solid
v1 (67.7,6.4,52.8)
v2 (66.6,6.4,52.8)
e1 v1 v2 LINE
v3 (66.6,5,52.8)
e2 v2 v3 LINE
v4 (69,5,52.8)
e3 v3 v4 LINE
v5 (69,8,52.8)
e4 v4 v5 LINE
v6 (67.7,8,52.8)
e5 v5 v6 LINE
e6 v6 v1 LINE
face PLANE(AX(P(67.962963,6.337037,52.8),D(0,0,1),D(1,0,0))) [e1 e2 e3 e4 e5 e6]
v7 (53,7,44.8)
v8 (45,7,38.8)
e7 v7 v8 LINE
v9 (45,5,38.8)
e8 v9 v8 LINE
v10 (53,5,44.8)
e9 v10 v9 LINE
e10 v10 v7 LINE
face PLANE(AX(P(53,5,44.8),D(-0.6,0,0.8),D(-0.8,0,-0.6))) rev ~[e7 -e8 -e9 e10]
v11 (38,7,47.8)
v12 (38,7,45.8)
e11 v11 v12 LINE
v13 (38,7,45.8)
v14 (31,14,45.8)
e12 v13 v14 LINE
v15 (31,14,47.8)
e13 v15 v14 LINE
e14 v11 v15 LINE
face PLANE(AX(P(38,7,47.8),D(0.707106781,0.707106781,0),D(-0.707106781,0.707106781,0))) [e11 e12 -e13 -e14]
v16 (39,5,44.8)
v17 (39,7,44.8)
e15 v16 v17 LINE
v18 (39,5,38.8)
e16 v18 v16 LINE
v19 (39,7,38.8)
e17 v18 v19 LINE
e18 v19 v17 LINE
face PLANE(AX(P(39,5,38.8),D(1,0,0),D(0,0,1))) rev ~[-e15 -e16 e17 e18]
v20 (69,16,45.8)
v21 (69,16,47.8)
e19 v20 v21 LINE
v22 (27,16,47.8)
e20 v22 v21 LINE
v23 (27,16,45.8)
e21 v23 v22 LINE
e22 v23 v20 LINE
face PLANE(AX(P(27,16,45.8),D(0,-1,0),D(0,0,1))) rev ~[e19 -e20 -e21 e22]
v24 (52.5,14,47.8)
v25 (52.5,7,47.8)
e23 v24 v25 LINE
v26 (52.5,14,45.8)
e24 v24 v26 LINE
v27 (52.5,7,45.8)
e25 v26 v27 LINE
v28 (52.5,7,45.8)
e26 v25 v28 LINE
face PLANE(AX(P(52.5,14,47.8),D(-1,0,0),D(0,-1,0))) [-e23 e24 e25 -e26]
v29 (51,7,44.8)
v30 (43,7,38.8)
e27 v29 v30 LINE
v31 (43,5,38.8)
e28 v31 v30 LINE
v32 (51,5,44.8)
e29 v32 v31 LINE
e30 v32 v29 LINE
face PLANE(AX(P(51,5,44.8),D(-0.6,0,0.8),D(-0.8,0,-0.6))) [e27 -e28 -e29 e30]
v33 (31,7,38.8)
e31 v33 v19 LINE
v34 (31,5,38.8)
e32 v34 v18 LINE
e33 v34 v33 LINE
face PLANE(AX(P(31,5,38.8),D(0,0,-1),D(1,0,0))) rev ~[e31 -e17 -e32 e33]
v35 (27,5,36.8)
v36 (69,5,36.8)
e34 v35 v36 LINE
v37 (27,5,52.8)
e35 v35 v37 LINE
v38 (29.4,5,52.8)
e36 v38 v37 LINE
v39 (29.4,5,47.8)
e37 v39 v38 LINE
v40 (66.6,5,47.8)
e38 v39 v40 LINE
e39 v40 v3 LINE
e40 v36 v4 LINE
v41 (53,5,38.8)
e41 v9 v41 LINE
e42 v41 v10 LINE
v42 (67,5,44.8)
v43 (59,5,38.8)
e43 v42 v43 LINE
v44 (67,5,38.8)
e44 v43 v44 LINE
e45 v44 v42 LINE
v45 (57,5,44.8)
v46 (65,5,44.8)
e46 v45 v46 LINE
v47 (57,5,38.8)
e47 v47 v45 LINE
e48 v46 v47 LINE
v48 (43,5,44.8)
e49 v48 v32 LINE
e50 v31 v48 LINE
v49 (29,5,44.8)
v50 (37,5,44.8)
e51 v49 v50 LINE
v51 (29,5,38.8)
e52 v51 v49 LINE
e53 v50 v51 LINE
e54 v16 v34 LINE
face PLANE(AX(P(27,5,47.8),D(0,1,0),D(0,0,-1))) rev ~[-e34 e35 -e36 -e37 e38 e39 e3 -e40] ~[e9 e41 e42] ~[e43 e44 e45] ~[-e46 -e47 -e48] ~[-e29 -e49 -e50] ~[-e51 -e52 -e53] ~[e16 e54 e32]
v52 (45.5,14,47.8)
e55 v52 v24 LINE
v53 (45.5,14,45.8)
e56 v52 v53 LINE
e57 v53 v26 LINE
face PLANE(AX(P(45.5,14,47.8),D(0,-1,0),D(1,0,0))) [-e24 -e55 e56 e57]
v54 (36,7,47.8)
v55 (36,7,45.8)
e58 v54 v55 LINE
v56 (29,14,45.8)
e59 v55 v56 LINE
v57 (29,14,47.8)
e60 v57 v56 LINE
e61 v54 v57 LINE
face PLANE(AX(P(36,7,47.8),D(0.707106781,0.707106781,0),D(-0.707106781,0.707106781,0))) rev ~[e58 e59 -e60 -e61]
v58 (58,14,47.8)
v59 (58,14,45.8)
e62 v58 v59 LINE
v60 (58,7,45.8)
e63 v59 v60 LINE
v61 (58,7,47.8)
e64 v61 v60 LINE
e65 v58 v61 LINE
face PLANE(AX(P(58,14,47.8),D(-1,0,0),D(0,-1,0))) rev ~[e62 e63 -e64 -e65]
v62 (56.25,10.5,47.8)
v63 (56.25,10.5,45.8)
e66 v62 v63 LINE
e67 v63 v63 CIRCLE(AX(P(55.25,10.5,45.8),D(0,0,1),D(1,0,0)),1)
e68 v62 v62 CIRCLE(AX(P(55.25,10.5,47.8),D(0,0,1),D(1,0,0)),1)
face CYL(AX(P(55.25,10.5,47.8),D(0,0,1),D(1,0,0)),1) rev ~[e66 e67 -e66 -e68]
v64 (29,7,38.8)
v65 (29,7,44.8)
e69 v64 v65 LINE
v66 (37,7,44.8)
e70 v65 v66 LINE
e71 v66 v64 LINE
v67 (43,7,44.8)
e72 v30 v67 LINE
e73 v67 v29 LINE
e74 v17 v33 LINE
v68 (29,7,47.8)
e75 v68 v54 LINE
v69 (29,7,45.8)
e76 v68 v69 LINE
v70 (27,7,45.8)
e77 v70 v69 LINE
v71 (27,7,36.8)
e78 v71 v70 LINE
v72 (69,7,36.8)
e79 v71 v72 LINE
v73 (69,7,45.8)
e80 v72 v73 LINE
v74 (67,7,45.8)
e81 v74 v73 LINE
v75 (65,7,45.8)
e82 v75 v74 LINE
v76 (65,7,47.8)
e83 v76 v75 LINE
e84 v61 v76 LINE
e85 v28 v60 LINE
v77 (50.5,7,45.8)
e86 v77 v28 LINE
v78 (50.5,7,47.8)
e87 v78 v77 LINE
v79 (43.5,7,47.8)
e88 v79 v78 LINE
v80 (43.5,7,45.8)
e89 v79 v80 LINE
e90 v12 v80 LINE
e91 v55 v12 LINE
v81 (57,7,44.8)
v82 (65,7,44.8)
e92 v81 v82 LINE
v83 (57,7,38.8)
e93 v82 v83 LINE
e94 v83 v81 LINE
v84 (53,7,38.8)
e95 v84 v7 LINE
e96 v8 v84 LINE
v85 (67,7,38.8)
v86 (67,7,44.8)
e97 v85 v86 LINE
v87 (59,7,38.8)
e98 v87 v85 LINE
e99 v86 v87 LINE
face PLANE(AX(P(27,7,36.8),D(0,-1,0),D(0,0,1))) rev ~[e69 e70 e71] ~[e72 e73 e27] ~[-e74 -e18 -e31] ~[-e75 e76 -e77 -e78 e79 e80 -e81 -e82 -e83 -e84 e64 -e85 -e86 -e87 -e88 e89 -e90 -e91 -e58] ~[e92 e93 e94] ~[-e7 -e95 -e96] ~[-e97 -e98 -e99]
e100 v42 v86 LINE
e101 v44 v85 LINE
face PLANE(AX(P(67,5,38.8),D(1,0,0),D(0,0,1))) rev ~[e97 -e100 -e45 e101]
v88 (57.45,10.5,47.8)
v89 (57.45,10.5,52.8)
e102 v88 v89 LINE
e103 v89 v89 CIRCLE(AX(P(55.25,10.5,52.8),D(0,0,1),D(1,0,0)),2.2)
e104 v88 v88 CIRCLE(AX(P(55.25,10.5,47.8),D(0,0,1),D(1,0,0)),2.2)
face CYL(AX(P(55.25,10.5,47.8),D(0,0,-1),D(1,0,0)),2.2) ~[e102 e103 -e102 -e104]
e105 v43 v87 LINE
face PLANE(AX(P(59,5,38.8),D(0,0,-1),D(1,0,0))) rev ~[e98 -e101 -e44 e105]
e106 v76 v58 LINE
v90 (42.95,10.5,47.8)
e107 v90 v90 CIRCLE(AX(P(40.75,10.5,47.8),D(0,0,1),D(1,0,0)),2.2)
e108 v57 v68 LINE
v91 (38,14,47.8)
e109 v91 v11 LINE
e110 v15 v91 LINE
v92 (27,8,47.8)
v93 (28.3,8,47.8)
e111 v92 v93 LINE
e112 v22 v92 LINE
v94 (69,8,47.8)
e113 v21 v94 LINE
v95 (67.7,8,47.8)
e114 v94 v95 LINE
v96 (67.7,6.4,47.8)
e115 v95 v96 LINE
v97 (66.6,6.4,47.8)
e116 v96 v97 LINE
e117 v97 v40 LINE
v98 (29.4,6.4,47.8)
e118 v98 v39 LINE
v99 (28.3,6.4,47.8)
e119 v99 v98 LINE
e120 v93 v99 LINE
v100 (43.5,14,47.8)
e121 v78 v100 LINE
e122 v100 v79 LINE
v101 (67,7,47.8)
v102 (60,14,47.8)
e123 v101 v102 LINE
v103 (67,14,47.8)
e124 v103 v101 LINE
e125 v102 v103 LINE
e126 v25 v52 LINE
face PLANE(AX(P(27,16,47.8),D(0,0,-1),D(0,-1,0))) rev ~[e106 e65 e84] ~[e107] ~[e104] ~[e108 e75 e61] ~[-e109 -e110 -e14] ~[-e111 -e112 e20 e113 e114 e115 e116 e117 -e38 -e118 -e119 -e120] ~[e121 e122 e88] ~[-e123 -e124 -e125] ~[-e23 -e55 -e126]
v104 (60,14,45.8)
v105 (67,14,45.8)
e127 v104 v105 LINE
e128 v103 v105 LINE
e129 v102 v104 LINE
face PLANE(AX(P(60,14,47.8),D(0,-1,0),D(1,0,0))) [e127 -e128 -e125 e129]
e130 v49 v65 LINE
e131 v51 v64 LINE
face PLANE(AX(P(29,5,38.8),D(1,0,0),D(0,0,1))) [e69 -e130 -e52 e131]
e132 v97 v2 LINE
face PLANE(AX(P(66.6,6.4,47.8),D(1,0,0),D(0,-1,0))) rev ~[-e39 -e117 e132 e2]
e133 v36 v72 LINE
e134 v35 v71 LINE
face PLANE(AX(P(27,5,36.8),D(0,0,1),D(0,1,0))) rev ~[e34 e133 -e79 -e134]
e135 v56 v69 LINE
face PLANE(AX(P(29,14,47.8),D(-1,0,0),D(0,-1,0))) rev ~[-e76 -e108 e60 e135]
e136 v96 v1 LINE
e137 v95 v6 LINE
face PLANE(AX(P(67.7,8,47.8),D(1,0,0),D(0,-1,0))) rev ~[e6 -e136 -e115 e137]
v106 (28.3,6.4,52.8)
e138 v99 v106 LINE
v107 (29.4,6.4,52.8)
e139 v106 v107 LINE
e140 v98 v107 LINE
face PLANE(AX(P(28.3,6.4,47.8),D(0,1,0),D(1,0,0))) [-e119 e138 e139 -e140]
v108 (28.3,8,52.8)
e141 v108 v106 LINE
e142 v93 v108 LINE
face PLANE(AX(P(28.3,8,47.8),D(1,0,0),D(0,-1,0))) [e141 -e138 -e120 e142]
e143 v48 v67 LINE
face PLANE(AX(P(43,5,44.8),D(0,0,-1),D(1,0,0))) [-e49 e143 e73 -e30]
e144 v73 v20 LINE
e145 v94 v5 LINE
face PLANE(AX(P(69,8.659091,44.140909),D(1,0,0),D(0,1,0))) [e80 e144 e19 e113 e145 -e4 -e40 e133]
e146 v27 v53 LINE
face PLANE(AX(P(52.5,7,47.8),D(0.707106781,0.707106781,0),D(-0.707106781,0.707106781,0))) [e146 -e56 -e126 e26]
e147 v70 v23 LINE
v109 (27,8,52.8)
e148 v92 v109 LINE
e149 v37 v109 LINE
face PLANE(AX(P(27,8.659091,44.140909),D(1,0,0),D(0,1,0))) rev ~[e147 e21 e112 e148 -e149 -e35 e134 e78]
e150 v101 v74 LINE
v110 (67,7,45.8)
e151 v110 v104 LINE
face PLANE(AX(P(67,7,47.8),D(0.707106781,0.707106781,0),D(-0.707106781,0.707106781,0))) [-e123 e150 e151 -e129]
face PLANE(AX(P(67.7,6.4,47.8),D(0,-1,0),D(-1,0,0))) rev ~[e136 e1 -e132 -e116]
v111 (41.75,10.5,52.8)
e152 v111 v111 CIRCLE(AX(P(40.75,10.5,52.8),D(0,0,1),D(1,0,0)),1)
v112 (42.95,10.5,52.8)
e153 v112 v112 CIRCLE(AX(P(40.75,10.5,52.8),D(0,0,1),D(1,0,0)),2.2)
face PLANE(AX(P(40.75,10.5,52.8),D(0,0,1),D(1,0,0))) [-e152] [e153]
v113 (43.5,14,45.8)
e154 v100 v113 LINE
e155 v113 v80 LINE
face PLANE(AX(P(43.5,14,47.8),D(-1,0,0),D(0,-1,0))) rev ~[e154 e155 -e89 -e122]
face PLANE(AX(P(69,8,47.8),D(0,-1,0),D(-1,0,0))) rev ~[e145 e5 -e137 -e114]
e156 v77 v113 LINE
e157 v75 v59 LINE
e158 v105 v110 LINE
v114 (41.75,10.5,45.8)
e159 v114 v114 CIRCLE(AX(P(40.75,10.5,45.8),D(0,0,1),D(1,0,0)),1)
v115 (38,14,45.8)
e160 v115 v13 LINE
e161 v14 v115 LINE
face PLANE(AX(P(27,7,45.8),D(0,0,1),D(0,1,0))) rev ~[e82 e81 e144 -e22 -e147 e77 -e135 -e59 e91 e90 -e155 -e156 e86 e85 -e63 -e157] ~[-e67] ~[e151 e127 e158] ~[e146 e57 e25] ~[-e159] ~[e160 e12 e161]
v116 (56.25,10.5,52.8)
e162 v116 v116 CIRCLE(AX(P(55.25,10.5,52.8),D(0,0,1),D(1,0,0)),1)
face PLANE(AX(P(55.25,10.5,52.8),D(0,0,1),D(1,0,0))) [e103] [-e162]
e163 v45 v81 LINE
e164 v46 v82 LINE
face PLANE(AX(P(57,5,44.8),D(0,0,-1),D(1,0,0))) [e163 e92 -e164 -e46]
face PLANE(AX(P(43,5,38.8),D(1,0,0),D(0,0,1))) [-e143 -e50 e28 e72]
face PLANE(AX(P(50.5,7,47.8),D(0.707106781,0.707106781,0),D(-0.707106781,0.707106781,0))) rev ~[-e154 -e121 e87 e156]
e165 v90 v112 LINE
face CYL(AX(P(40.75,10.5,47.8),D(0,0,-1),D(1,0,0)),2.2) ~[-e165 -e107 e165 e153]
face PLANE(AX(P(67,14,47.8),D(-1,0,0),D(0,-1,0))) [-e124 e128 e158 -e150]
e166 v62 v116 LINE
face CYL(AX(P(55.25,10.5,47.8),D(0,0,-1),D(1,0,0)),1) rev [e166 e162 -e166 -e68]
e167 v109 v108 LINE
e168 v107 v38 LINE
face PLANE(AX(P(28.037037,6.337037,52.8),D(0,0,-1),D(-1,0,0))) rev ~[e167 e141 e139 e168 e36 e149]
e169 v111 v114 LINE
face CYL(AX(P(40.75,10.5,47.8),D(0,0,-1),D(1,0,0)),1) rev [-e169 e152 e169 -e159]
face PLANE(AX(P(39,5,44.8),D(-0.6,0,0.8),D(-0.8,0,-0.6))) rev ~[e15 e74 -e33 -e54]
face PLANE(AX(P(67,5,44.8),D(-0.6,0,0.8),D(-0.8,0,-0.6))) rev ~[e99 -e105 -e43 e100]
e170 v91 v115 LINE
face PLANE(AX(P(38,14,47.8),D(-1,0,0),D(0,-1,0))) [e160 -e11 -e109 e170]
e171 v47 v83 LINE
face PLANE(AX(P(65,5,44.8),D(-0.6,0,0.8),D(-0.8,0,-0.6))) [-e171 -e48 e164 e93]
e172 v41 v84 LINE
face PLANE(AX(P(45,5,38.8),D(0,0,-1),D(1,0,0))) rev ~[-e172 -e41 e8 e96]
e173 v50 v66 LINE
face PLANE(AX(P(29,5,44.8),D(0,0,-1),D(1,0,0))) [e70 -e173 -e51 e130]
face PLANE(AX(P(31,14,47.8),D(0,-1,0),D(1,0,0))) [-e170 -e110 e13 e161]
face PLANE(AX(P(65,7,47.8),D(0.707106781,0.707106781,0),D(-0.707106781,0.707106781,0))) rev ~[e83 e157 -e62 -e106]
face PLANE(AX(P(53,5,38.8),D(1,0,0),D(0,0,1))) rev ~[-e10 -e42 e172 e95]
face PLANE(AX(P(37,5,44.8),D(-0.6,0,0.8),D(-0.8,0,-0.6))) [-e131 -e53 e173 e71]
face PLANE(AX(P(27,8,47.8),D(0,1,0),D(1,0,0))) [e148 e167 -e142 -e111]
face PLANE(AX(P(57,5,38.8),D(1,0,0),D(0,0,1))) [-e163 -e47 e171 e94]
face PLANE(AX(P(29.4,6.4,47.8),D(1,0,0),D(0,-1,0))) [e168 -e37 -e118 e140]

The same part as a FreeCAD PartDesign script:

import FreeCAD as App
import Part
import Sketcher
Q = App.Units.Quantity


def add_polygon(sketch, points):
    """Adds a closed chain of lines whose ends are joined by coincident constraints."""
    first, n = sketch.GeometryCount, len(points)
    for a, b in zip(points, points[1:] + points[:1]):
        sketch.addGeometry(Part.LineSegment(App.Vector(*a, 0), App.Vector(*b, 0)), False)
    for i in range(n):
        sketch.addConstraint(Sketcher.Constraint("Coincident", first + i, 2, first + (i + 1) % n, 1))

doc = App.newDocument("Part")
body = doc.addObject("PartDesign::Body", "Body")

# Sketch on YZ plane
sketch1 = body.newObject("Sketcher::SketchObject", "Sketch")
sketch1.AttachmentSupport = (doc.getObject("YZ_Plane"), [""])
sketch1.MapMode = "FlatFace"
add_polygon(sketch1, [(5, -11), (7, -11), (7, -2), (16, -2), (16, 0), (5, 0)])  # lines 0-5
sketch1.addConstraint([
    Sketcher.Constraint("Horizontal", 0),
    Sketcher.Constraint("Vertical", 1),
    Sketcher.Constraint("Horizontal", 2),
    Sketcher.Constraint("Vertical", 3),
    Sketcher.Constraint("Horizontal", 4),
    Sketcher.Constraint("Vertical", 5),
    Sketcher.Constraint("PointOnObject", 3, 2, -1),
    Sketcher.Constraint("Equal", 2, 1),
    Sketcher.Constraint("Equal", 0, 3),
    Sketcher.Constraint("DistanceX", 0, 1, 0, 2, Q("2 mm")),
    Sketcher.Constraint("DistanceX", 2, 1, 2, 2, Q("9 mm")),
    Sketcher.Constraint("DistanceX", -1, 1, 0, 2, Q("7 mm")),
])
pad1 = body.newObject("PartDesign::Pad", "Pad")
pad1.Profile = sketch1
pad1.Length = 42

# Sketch on XY plane
sketch2 = body.newObject("Sketcher::SketchObject", "Sketch001")
sketch2.AttachmentSupport = (doc.getObject("XY_Plane"), [""])
sketch2.MapMode = "FlatFace"
sketch2.addGeometry(Part.Circle(App.Vector(13.75, 10.5, 0), App.Vector(0, 0, 1), 1), False)  # 0
sketch2.addGeometry(Part.Circle(App.Vector(28.25, 10.5, 0), App.Vector(0, 0, 1), 1), False)  # 1
add_polygon(sketch2, [(2, 14), (2, 7), (9, 7)])  # lines 2-4
add_polygon(sketch2, [(11, 14), (4, 14), (11, 7)])  # lines 5-7
add_polygon(sketch2, [(31, 14), (31, 7), (38, 7)])  # lines 8-10
add_polygon(sketch2, [(40, 14), (33, 14), (40, 7)])  # lines 11-13
add_polygon(sketch2, [(16.5, 14), (16.5, 7), (23.5, 7)])  # lines 14-16
add_polygon(sketch2, [(25.5, 14), (18.5, 14), (25.5, 7)])  # lines 17-19
sketch2.addConstraint([
    Sketcher.Constraint("Vertical", 2),
    Sketcher.Constraint("Horizontal", 3),
    Sketcher.Constraint("Horizontal", 5),
    Sketcher.Constraint("Vertical", 7),
    Sketcher.Constraint("Vertical", 8),
    Sketcher.Constraint("Horizontal", 9),
    Sketcher.Constraint("Horizontal", 11),
    Sketcher.Constraint("Vertical", 13),
    Sketcher.Constraint("Vertical", 14),
    Sketcher.Constraint("Horizontal", 15),
    Sketcher.Constraint("Horizontal", 17),
    Sketcher.Constraint("Vertical", 19),
    Sketcher.Constraint("Equal", 0, 1),
    Sketcher.Constraint("Parallel", 4, 6),
    Sketcher.Constraint("Parallel", 6, 10),
    Sketcher.Constraint("Parallel", 10, 12),
    Sketcher.Constraint("Parallel", 12, 16),
    Sketcher.Constraint("Parallel", 16, 18),
    Sketcher.Constraint("Horizontal", 0, 3, 1, 3),
    Sketcher.Constraint("Horizontal", 4, 2, 5, 2),
    Sketcher.Constraint("Horizontal", 3, 2, 6, 2),
    Sketcher.Constraint("Horizontal", 6, 2, 8, 2),
    Sketcher.Constraint("Horizontal", 7, 2, 10, 2),
    Sketcher.Constraint("Horizontal", 10, 2, 11, 2),
    Sketcher.Constraint("Horizontal", 9, 2, 12, 2),
    Sketcher.Constraint("Horizontal", 12, 2, 14, 2),
    Sketcher.Constraint("Horizontal", 13, 2, 16, 2),
    Sketcher.Constraint("Horizontal", 16, 2, 17, 2),
    Sketcher.Constraint("Horizontal", 15, 2, 18, 2),
    Sketcher.Constraint("Equal", 17, 2),
    Sketcher.Constraint("Diameter", 0, Q("2 mm")),
    Sketcher.Constraint("DistanceX", 3, 1, 3, 2, Q("7 mm")),
    Sketcher.Constraint("DistanceX", -1, 1, 2, 2, Q("2 mm")),
    Sketcher.Constraint("DistanceY", -1, 1, 2, 2, Q("7 mm")),
    Sketcher.Constraint("DistanceX", -1, 1, 5, 2, Q("4 mm")),
    Sketcher.Constraint("DistanceX", -1, 1, 8, 2, Q("31 mm")),
    Sketcher.Constraint("DistanceX", -1, 1, 11, 2, Q("33 mm")),
    Sketcher.Constraint("DistanceX", 16, 2, 17, 2, Q("2 mm")),
    Sketcher.Constraint("DistanceY", -1, 1, 0, 3, Q("10.5 mm")),
    Sketcher.Constraint("DistanceX", -1, 1, 14, 2, Q("16.5 mm")),
    Sketcher.Constraint("DistanceX", 0, 3, 1, 3, Q("14.5 mm")),
    Sketcher.Constraint("DistanceX", -1, 1, 0, 3, Q("13.75 mm")),
])
pocket1 = body.newObject("PartDesign::Pocket", "Pocket")
pocket1.Profile = sketch2
pocket1.Length = 2

# Sketch on XZ plane
sketch3 = body.newObject("Sketcher::SketchObject", "Sketch002")
sketch3.AttachmentSupport = (doc.getObject("XZ_Plane"), [""])
sketch3.MapMode = "FlatFace"
sketch3.AttachmentOffset = App.Placement(App.Vector(0, 0, -5), App.Rotation())
add_polygon(sketch3, [(10, -3), (2, -3), (2, -9)])  # lines 0-2
add_polygon(sketch3, [(12, -3), (4, -9), (12, -9)])  # lines 3-5
add_polygon(sketch3, [(38, -3), (30, -3), (30, -9)])  # lines 6-8
add_polygon(sketch3, [(40, -3), (32, -9), (40, -9)])  # lines 9-11
add_polygon(sketch3, [(24, -3), (16, -3), (16, -9)])  # lines 12-14
add_polygon(sketch3, [(26, -3), (18, -9), (26, -9)])  # lines 15-17
sketch3.addConstraint([
    Sketcher.Constraint("Horizontal", 0),
    Sketcher.Constraint("Vertical", 1),
    Sketcher.Constraint("Horizontal", 4),
    Sketcher.Constraint("Vertical", 5),
    Sketcher.Constraint("Horizontal", 6),
    Sketcher.Constraint("Vertical", 7),
    Sketcher.Constraint("Horizontal", 10),
    Sketcher.Constraint("Vertical", 11),
    Sketcher.Constraint("Horizontal", 12),
    Sketcher.Constraint("Vertical", 13),
    Sketcher.Constraint("Horizontal", 16),
    Sketcher.Constraint("Vertical", 17),
    Sketcher.Constraint("Parallel", 2, 3),
    Sketcher.Constraint("Parallel", 3, 8),
    Sketcher.Constraint("Parallel", 8, 9),
    Sketcher.Constraint("Parallel", 9, 14),
    Sketcher.Constraint("Parallel", 14, 15),
    Sketcher.Constraint("Horizontal", 1, 2, 3, 2),
    Sketcher.Constraint("Horizontal", 2, 2, 5, 2),
    Sketcher.Constraint("Horizontal", 5, 2, 6, 2),
    Sketcher.Constraint("Horizontal", 4, 2, 7, 2),
    Sketcher.Constraint("Horizontal", 7, 2, 9, 2),
    Sketcher.Constraint("Horizontal", 8, 2, 11, 2),
    Sketcher.Constraint("Horizontal", 11, 2, 12, 2),
    Sketcher.Constraint("Horizontal", 10, 2, 13, 2),
    Sketcher.Constraint("Horizontal", 13, 2, 15, 2),
    Sketcher.Constraint("Horizontal", 14, 2, 17, 2),
    Sketcher.Constraint("DistanceX", 0, 2, 0, 1, Q("8 mm")),
    Sketcher.Constraint("DistanceY", 1, 2, 1, 1, Q("6 mm")),
    Sketcher.Constraint("DistanceX", -1, 1, 0, 2, Q("2 mm")),
    Sketcher.Constraint("DistanceY", 0, 2, -1, 1, Q("3 mm")),
    Sketcher.Constraint("DistanceX", -1, 1, 3, 2, Q("4 mm")),
    Sketcher.Constraint("DistanceX", -1, 1, 6, 2, Q("30 mm")),
    Sketcher.Constraint("DistanceX", -1, 1, 9, 2, Q("32 mm")),
    Sketcher.Constraint("DistanceX", -1, 1, 12, 2, Q("16 mm")),
    Sketcher.Constraint("DistanceX", -1, 1, 15, 2, Q("18 mm")),
])
pocket2 = body.newObject("PartDesign::Pocket", "Pocket001")
pocket2.Profile = sketch3
pocket2.Length = 2

# Sketch on XY plane
sketch4 = body.newObject("Sketcher::SketchObject", "Sketch003")
sketch4.AttachmentSupport = (doc.getObject("XY_Plane"), [""])
sketch4.MapMode = "FlatFace"
sketch4.addGeometry(Part.Circle(App.Vector(13.75, 10.5, 0), App.Vector(0, 0, 1), 2.2), False)  # 0
sketch4.addGeometry(Part.Circle(App.Vector(13.75, 10.5, 0), App.Vector(0, 0, 1), 1), False)  # 1
sketch4.addGeometry(Part.Circle(App.Vector(28.25, 10.5, 0), App.Vector(0, 0, 1), 2.2), False)  # 2
sketch4.addGeometry(Part.Circle(App.Vector(28.25, 10.5, 0), App.Vector(0, 0, 1), 1), False)  # 3
add_polygon(sketch4, [(1.3, 8), (0, 8), (0, 5), (2.4, 5), (2.4, 6.4), (1.3, 6.4)])  # lines 4-9
add_polygon(sketch4, [(42, 5), (42, 8), (40.7, 8), (40.7, 6.4), (39.6, 6.4), (39.6, 5)])  # lines 10-15
sketch4.addConstraint([
    Sketcher.Constraint("Horizontal", 4),
    Sketcher.Constraint("Vertical", 5),
    Sketcher.Constraint("Horizontal", 6),
    Sketcher.Constraint("Vertical", 7),
    Sketcher.Constraint("Horizontal", 8),
    Sketcher.Constraint("Vertical", 9),
    Sketcher.Constraint("Vertical", 10),
    Sketcher.Constraint("Horizontal", 11),
    Sketcher.Constraint("Vertical", 12),
    Sketcher.Constraint("Horizontal", 13),
    Sketcher.Constraint("Vertical", 14),
    Sketcher.Constraint("Horizontal", 15),
    Sketcher.Constraint("Coincident", 1, 3, 0, 3),
    Sketcher.Constraint("Coincident", 3, 3, 2, 3),
    Sketcher.Constraint("Equal", 0, 2),
    Sketcher.Constraint("Equal", 1, 3),
    Sketcher.Constraint("PointOnObject", 4, 2, -2),
    Sketcher.Constraint("Horizontal", 1, 3, 2, 3),
    Sketcher.Constraint("Horizontal", 9, 2, 10, 2),
    Sketcher.Constraint("Horizontal", 8, 2, 12, 2),
    Sketcher.Constraint("Horizontal", 6, 2, 14, 2),
    Sketcher.Constraint("Equal", 4, 11),
    Sketcher.Constraint("Equal", 8, 13),
    Sketcher.Constraint("Diameter", 1, Q("2 mm")),
    Sketcher.Constraint("Diameter", 0, Q("4.4 mm")),
    Sketcher.Constraint("DistanceY", 5, 2, 5, 1, Q("3 mm")),
    Sketcher.Constraint("DistanceX", 4, 2, 4, 1, Q("1.3 mm")),
    Sketcher.Constraint("DistanceX", 6, 1, 6, 2, Q("2.4 mm")),
    Sketcher.Constraint("DistanceY", 7, 1, 7, 2, Q("1.4 mm")),
    Sketcher.Constraint("DistanceY", -1, 1, 4, 2, Q("8 mm")),
    Sketcher.Constraint("DistanceX", -1, 1, 10, 2, Q("42 mm")),
    Sketcher.Constraint("DistanceY", -1, 1, 0, 3, Q("10.5 mm")),
    Sketcher.Constraint("DistanceX", 0, 3, 2, 3, Q("14.5 mm")),
    Sketcher.Constraint("DistanceX", -1, 1, 0, 3, Q("13.75 mm")),
])
pad2 = body.newObject("PartDesign::Pad", "Pad001")
pad2.Profile = sketch4
pad2.Length = 5
body2 = doc.addObject("PartDesign::Body", "Body001")
doc.recompute()

body.Placement = App.Placement(App.Vector(27, 0, 47.8), App.Rotation(App.Vector(0, 0, 1), 0))
boolean = body2.newObject("PartDesign::Boolean", "Boolean")
boolean.Type = "Fuse"
boolean.addObjects([body])

doc.recompute()
